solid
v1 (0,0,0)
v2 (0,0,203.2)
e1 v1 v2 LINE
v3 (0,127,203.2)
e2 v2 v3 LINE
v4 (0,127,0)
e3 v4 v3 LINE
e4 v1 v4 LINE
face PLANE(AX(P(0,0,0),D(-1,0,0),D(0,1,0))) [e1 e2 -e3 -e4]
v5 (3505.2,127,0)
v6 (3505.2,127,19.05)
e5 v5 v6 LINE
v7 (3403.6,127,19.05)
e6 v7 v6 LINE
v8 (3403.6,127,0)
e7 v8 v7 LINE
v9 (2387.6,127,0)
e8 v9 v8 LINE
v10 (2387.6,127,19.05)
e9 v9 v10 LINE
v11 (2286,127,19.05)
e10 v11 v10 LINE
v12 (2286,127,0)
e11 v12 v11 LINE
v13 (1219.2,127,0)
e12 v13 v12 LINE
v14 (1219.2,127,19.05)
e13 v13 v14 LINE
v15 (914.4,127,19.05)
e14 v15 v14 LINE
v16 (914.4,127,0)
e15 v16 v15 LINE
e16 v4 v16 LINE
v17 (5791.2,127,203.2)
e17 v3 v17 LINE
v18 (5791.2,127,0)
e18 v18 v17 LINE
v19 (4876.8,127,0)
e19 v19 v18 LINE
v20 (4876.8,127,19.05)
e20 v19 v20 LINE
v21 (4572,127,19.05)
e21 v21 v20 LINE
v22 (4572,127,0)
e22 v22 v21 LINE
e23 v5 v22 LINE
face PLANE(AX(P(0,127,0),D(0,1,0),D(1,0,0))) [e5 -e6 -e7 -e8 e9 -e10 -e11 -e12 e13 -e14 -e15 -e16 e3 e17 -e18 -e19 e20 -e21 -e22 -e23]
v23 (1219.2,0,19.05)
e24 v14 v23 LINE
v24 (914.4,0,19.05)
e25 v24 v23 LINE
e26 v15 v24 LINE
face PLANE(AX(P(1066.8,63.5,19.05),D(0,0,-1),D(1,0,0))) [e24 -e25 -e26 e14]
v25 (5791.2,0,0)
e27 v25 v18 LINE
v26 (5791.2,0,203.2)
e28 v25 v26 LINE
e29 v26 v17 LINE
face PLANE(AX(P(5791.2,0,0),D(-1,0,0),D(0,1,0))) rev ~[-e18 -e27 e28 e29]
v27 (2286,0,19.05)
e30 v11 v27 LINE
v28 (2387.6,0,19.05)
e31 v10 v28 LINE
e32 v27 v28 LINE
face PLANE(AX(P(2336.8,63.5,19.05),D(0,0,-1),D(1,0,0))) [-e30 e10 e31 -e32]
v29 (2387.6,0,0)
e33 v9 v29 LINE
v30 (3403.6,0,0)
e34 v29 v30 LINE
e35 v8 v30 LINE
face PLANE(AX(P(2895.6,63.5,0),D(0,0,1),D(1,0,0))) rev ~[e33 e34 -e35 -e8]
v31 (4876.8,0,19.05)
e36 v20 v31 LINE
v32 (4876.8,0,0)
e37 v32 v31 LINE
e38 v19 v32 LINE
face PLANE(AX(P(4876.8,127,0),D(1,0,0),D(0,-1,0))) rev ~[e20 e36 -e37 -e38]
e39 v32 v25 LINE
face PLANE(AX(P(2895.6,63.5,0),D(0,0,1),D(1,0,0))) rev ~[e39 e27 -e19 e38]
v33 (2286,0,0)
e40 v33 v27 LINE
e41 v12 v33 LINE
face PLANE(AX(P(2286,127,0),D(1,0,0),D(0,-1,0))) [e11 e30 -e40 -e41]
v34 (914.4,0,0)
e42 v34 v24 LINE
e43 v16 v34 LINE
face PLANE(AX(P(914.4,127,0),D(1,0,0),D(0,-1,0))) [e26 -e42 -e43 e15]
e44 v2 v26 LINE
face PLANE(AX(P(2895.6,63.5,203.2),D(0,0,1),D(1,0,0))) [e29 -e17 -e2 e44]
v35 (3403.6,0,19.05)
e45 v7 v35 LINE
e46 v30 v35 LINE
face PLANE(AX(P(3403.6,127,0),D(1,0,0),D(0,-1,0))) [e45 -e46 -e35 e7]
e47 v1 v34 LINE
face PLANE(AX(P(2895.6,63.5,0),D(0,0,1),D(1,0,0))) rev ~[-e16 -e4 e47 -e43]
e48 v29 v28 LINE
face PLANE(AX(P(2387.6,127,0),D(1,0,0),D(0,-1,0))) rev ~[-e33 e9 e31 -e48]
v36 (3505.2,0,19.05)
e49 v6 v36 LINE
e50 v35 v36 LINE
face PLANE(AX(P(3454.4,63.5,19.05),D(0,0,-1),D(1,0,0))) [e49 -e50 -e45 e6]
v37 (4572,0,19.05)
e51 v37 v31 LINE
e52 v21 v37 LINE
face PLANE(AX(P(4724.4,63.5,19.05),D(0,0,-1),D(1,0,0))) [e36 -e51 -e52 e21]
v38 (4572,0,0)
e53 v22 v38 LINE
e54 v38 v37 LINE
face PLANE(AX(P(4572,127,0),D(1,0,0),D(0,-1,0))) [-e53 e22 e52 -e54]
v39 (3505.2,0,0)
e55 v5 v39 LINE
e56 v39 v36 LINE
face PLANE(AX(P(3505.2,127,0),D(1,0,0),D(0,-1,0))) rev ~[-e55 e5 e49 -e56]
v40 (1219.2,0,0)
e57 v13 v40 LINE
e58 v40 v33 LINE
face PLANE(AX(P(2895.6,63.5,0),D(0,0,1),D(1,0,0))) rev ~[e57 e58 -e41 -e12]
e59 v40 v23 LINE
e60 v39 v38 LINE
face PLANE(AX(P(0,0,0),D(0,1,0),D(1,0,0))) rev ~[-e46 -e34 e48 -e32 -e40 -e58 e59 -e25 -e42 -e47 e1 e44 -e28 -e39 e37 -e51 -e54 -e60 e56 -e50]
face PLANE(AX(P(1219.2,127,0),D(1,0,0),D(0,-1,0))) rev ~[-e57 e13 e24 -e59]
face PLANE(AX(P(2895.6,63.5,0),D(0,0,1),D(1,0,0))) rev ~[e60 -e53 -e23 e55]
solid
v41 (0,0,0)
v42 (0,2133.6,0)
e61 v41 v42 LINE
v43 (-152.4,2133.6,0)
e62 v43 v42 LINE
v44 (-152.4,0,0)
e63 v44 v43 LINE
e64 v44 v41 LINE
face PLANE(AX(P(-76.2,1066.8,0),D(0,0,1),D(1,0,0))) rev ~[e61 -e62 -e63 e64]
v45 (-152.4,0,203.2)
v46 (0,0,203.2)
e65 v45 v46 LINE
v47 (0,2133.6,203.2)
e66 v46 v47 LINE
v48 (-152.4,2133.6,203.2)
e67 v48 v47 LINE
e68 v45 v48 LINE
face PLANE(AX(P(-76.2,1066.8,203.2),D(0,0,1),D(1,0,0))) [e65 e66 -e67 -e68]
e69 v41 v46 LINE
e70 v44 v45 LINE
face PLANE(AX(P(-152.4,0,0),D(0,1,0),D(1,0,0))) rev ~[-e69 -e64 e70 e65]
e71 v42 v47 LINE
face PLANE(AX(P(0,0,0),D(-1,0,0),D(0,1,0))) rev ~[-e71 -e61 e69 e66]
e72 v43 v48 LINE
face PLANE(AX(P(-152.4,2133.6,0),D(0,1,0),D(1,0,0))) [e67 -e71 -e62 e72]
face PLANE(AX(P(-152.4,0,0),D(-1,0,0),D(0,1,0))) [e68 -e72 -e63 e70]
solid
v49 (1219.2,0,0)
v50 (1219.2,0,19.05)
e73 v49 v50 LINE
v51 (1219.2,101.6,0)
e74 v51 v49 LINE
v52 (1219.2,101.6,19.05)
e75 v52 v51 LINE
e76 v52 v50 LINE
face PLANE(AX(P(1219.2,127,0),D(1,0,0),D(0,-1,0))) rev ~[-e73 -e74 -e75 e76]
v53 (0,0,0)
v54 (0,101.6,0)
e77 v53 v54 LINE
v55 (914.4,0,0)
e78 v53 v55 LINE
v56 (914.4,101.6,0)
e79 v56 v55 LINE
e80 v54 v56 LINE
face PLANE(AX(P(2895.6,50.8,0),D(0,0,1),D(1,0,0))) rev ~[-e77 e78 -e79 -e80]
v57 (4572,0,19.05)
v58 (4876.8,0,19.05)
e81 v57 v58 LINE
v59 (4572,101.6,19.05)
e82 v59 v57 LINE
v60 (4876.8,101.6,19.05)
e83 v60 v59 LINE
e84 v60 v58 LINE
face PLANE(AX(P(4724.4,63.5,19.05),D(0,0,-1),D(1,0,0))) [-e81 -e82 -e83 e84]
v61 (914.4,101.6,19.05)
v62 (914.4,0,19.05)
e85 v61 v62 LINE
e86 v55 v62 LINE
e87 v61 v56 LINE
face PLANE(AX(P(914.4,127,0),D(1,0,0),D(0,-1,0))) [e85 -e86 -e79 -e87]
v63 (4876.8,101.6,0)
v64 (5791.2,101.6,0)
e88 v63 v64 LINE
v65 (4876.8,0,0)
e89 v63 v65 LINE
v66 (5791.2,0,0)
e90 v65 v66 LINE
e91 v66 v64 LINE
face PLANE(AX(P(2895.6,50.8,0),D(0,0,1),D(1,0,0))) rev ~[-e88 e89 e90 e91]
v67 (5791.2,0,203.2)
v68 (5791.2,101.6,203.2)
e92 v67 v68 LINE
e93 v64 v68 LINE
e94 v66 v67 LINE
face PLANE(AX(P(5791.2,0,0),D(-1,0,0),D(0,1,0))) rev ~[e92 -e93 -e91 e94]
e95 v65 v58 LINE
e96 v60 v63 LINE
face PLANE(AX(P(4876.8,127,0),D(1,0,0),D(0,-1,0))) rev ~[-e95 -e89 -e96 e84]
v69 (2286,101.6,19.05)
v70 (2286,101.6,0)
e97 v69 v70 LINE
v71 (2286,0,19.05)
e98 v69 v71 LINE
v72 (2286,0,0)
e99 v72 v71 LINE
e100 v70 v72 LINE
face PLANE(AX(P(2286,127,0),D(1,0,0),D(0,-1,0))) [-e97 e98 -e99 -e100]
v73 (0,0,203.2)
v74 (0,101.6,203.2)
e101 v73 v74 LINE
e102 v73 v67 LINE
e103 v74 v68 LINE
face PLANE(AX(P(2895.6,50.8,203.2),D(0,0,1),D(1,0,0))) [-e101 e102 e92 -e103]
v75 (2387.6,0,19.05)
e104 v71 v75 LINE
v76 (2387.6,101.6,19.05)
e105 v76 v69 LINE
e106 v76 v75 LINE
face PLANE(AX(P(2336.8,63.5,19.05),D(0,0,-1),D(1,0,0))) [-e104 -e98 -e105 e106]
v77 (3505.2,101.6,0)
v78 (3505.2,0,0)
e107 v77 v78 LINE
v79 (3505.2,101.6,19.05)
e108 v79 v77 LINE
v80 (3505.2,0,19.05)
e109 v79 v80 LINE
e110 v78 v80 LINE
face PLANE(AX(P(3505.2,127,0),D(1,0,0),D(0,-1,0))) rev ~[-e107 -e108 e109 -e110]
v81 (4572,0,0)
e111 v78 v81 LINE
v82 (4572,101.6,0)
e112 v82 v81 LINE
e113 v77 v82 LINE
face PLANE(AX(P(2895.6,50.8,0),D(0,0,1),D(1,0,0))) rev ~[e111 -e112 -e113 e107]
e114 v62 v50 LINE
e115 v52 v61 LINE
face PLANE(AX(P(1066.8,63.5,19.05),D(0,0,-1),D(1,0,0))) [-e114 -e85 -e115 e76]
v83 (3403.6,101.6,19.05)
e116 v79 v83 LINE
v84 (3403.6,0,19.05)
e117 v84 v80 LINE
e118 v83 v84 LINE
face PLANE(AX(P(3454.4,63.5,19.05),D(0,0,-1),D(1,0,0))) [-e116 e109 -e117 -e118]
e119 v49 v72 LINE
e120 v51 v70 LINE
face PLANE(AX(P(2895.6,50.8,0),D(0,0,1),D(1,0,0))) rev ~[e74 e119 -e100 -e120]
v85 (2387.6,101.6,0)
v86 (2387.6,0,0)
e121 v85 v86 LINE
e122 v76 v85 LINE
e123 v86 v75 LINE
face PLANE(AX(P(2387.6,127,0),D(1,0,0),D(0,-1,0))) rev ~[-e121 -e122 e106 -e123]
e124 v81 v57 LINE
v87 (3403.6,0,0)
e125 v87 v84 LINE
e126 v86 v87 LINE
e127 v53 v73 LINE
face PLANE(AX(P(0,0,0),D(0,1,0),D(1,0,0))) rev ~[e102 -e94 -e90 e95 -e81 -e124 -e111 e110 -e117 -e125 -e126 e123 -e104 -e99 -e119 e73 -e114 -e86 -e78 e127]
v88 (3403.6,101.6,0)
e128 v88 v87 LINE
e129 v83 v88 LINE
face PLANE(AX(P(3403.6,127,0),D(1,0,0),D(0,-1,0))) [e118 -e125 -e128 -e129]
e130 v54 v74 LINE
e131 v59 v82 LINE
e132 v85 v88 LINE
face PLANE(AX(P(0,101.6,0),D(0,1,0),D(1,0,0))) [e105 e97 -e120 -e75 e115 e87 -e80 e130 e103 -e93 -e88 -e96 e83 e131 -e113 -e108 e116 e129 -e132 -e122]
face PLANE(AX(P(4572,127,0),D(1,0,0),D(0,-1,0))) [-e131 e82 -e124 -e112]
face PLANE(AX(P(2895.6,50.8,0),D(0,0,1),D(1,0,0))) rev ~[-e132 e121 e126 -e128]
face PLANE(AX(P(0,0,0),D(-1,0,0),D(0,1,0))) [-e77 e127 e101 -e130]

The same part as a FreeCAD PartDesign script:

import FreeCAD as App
import Part
import Sketcher

V = App.Vector
Q = App.Units.Quantity


def add_polygon(sketch, points):
    """Adds a closed chain of lines whose ends are joined by coincident constraints."""
    first, n = sketch.GeometryCount, len(points)
    for a, b in zip(points, points[1:] + points[:1]):
        sketch.addGeometry(Part.LineSegment(App.Vector(*a, 0), App.Vector(*b, 0)), False)
    for i in range(n):
        sketch.addConstraint(Sketcher.Constraint("Coincident", first + i, 2, first + (i + 1) % n, 1))

doc = App.newDocument("Part")
params = doc.addObject("Spreadsheet::Sheet", "Params")
for row, (alias, value) in enumerate([
    ("sketch1_width", "228 in"),
    ("sketch1_height", "5 in"),
    ("pad1_length", "8 in"),
    ("sketch2_width", "12 in"),
    ("sketch2_width2", "4 in"),
    ("sketch2_height", "5 in"),
    ("pocket1_length", "0.75 in"),
    ("sketch3_width", "228 in"),
    ("sketch3_height", "4 in"),
    ("pad2_length", "8 in"),
    ("sketch4_width", "12 in"),
    ("sketch4_width2", "4 in"),
    ("sketch4_height", "5 in"),
    ("pocket2_length", "0.75 in"),
    ("sketch5_width", "6 in"),
    ("sketch5_height", "84 in"),
    ("pad3_length", "8 in"),
], start=1):
    params.set(f"A{row}", alias)
    params.set(f"B{row}", "=" + value)
    params.setAlias(f"B{row}", alias)

body = doc.addObject("PartDesign::Body", "Body")

# Sketch on XY plane
sketch1 = body.newObject("Sketcher::SketchObject", "Sketch")
sketch1.AttachmentSupport = (doc.getObject("XY_Plane"), [""])
sketch1.MapMode = "FlatFace"
add_polygon(sketch1, [(0, 127), (0, 0), (5791, 0), (5791, 127)])  # lines 0-3
sketch1.addConstraint([
    Sketcher.Constraint("Vertical", 0),
    Sketcher.Constraint("Horizontal", 1),
    Sketcher.Constraint("Vertical", 2),
    Sketcher.Constraint("Horizontal", 3),
    Sketcher.Constraint("Coincident", 0, 2, -1, 1),
    Sketcher.Constraint("DistanceX", 1, 1, 1, 2, Q("228 in")),
    Sketcher.Constraint("DistanceY", 0, 2, 0, 1, Q("5 in")),
])
sketch1.setExpression("Constraints[9]", "Params.sketch1_width")
sketch1.setExpression("Constraints[10]", "Params.sketch1_height")
pad1 = body.newObject("PartDesign::Pad", "Pad")
pad1.Profile = sketch1
pad1.setExpression("Length", "Params.pad1_length")

# Sketch on XY plane
sketch2 = body.newObject("Sketcher::SketchObject", "Sketch001")
sketch2.AttachmentSupport = (doc.getObject("XY_Plane"), [""])
sketch2.MapMode = "FlatFace"
add_polygon(sketch2, [(914, 0), (914, 127), (1219, 127), (1219, 0)])  # lines 0-3
add_polygon(sketch2, [(2286, 0), (2286, 127), (2388, 127), (2388, 0)])  # lines 4-7
add_polygon(sketch2, [(3404, 0), (3404, 127), (3505, 127), (3505, 0)])  # lines 8-11
add_polygon(sketch2, [(4572, 0), (4572, 127), (4877, 127), (4877, 0)])  # lines 12-15
sketch2.addConstraint([
    Sketcher.Constraint("Vertical", 0),
    Sketcher.Constraint("Horizontal", 1),
    Sketcher.Constraint("Vertical", 2),
    Sketcher.Constraint("Horizontal", 3),
    Sketcher.Constraint("Vertical", 4),
    Sketcher.Constraint("Horizontal", 5),
    Sketcher.Constraint("Vertical", 6),
    Sketcher.Constraint("Horizontal", 7),
    Sketcher.Constraint("Vertical", 8),
    Sketcher.Constraint("Horizontal", 9),
    Sketcher.Constraint("Vertical", 10),
    Sketcher.Constraint("Horizontal", 11),
    Sketcher.Constraint("Vertical", 12),
    Sketcher.Constraint("Horizontal", 13),
    Sketcher.Constraint("Vertical", 14),
    Sketcher.Constraint("Horizontal", 15),
    Sketcher.Constraint("PointOnObject", 2, 2, -1),
    Sketcher.Constraint("PointOnObject", 6, 2, -1),
    Sketcher.Constraint("PointOnObject", 10, 2, -1),
    Sketcher.Constraint("PointOnObject", 14, 2, -1),
    Sketcher.Constraint("Horizontal", 1, 2, 4, 2),
    Sketcher.Constraint("Horizontal", 5, 2, 8, 2),
    Sketcher.Constraint("Horizontal", 9, 2, 12, 2),
    Sketcher.Constraint("Equal", 7, 9),
    Sketcher.Constraint("Equal", 3, 13),
    Sketcher.Constraint("DistanceX", 1, 1, 1, 2, Q("12 in")),
    Sketcher.Constraint("DistanceX", 5, 1, 5, 2, Q("4 in")),
    Sketcher.Constraint("DistanceY", 0, 1, 0, 2, Q("5 in")),
    Sketcher.Constraint("DistanceX", -1, 1, 0, 2, Q("36 in")),
    Sketcher.Constraint("DistanceX", -1, 1, 4, 2, Q("90 in")),
    Sketcher.Constraint("DistanceX", -1, 1, 8, 2, Q("134 in")),
    Sketcher.Constraint("DistanceX", -1, 1, 12, 2, Q("180 in")),
])
sketch2.setExpression("Constraints[41]", "Params.sketch2_width")
sketch2.setExpression("Constraints[42]", "Params.sketch2_width2")
sketch2.setExpression("Constraints[43]", "Params.sketch2_height")
pocket1 = body.newObject("PartDesign::Pocket", "Pocket")
pocket1.Profile = sketch2
pocket1.setExpression("Length", "Params.pocket1_length")
pocket1.Reversed = True
body2 = doc.addObject("PartDesign::Body", "Body001")

# Sketch on XY plane
sketch3 = body2.newObject("Sketcher::SketchObject", "Sketch002")
sketch3.AttachmentSupport = (doc.getObject("XY_Plane001"), [""])
sketch3.MapMode = "FlatFace"
add_polygon(sketch3, [(0, 102), (0, 0), (5791, 0), (5791, 102)])  # lines 0-3
sketch3.addConstraint([
    Sketcher.Constraint("Vertical", 0),
    Sketcher.Constraint("Horizontal", 1),
    Sketcher.Constraint("Vertical", 2),
    Sketcher.Constraint("Horizontal", 3),
    Sketcher.Constraint("Coincident", 0, 2, -1, 1),
    Sketcher.Constraint("DistanceX", 1, 1, 1, 2, Q("228 in")),
    Sketcher.Constraint("DistanceY", 0, 2, 0, 1, Q("4 in")),
])
sketch3.setExpression("Constraints[9]", "Params.sketch3_width")
sketch3.setExpression("Constraints[10]", "Params.sketch3_height")
pad2 = body2.newObject("PartDesign::Pad", "Pad001")
pad2.Profile = sketch3
pad2.setExpression("Length", "Params.pad2_length")

# Sketch on XY plane
sketch4 = body2.newObject("Sketcher::SketchObject", "Sketch003")
sketch4.AttachmentSupport = (doc.getObject("XY_Plane001"), [""])
sketch4.MapMode = "FlatFace"
add_polygon(sketch4, [(914, 0), (914, 127), (1219, 127), (1219, 0)])  # lines 0-3
add_polygon(sketch4, [(2286, 0), (2286, 127), (2388, 127), (2388, 0)])  # lines 4-7
add_polygon(sketch4, [(3404, 0), (3404, 127), (3505, 127), (3505, 0)])  # lines 8-11
add_polygon(sketch4, [(4572, 0), (4572, 127), (4877, 127), (4877, 0)])  # lines 12-15
sketch4.addConstraint([
    Sketcher.Constraint("Vertical", 0),
    Sketcher.Constraint("Horizontal", 1),
    Sketcher.Constraint("Vertical", 2),
    Sketcher.Constraint("Horizontal", 3),
    Sketcher.Constraint("Vertical", 4),
    Sketcher.Constraint("Horizontal", 5),
    Sketcher.Constraint("Vertical", 6),
    Sketcher.Constraint("Horizontal", 7),
    Sketcher.Constraint("Vertical", 8),
    Sketcher.Constraint("Horizontal", 9),
    Sketcher.Constraint("Vertical", 10),
    Sketcher.Constraint("Horizontal", 11),
    Sketcher.Constraint("Vertical", 12),
    Sketcher.Constraint("Horizontal", 13),
    Sketcher.Constraint("Vertical", 14),
    Sketcher.Constraint("Horizontal", 15),
    Sketcher.Constraint("PointOnObject", 2, 2, -1),
    Sketcher.Constraint("PointOnObject", 6, 2, -1),
    Sketcher.Constraint("PointOnObject", 10, 2, -1),
    Sketcher.Constraint("PointOnObject", 14, 2, -1),
    Sketcher.Constraint("Horizontal", 1, 2, 4, 2),
    Sketcher.Constraint("Horizontal", 5, 2, 8, 2),
    Sketcher.Constraint("Horizontal", 9, 2, 12, 2),
    Sketcher.Constraint("Equal", 7, 9),
    Sketcher.Constraint("Equal", 3, 13),
    Sketcher.Constraint("DistanceX", 1, 1, 1, 2, Q("12 in")),
    Sketcher.Constraint("DistanceX", 5, 1, 5, 2, Q("4 in")),
    Sketcher.Constraint("DistanceY", 0, 1, 0, 2, Q("5 in")),
    Sketcher.Constraint("DistanceX", -1, 1, 0, 2, Q("36 in")),
    Sketcher.Constraint("DistanceX", -1, 1, 4, 2, Q("90 in")),
    Sketcher.Constraint("DistanceX", -1, 1, 8, 2, Q("134 in")),
    Sketcher.Constraint("DistanceX", -1, 1, 12, 2, Q("180 in")),
])
sketch4.setExpression("Constraints[41]", "Params.sketch4_width")
sketch4.setExpression("Constraints[42]", "Params.sketch4_width2")
sketch4.setExpression("Constraints[43]", "Params.sketch4_height")
pocket2 = body2.newObject("PartDesign::Pocket", "Pocket001")
pocket2.Profile = sketch4
pocket2.setExpression("Length", "Params.pocket2_length")
pocket2.Reversed = True
body3 = doc.addObject("PartDesign::Body", "Body002")

# Sketch on XY plane
sketch5 = body3.newObject("Sketcher::SketchObject", "Sketch004")
sketch5.AttachmentSupport = (doc.getObject("XY_Plane002"), [""])
sketch5.MapMode = "FlatFace"
add_polygon(sketch5, [(-152, 2134), (-152, 0), (0, 0), (0, 2134)])  # lines 0-3
sketch5.addConstraint([
    Sketcher.Constraint("Vertical", 0),
    Sketcher.Constraint("Horizontal", 1),
    Sketcher.Constraint("Vertical", 2),
    Sketcher.Constraint("Horizontal", 3),
    Sketcher.Constraint("Coincident", 1, 2, -1, 1),
    Sketcher.Constraint("DistanceX", 1, 1, 1, 2, Q("6 in")),
    Sketcher.Constraint("DistanceY", 0, 2, 0, 1, Q("84 in")),
])
sketch5.setExpression("Constraints[9]", "Params.sketch5_width")
sketch5.setExpression("Constraints[10]", "Params.sketch5_height")
pad3 = body3.newObject("PartDesign::Pad", "Pad002")
pad3.Profile = sketch5
pad3.setExpression("Length", "Params.pad3_length")

doc.recompute()
